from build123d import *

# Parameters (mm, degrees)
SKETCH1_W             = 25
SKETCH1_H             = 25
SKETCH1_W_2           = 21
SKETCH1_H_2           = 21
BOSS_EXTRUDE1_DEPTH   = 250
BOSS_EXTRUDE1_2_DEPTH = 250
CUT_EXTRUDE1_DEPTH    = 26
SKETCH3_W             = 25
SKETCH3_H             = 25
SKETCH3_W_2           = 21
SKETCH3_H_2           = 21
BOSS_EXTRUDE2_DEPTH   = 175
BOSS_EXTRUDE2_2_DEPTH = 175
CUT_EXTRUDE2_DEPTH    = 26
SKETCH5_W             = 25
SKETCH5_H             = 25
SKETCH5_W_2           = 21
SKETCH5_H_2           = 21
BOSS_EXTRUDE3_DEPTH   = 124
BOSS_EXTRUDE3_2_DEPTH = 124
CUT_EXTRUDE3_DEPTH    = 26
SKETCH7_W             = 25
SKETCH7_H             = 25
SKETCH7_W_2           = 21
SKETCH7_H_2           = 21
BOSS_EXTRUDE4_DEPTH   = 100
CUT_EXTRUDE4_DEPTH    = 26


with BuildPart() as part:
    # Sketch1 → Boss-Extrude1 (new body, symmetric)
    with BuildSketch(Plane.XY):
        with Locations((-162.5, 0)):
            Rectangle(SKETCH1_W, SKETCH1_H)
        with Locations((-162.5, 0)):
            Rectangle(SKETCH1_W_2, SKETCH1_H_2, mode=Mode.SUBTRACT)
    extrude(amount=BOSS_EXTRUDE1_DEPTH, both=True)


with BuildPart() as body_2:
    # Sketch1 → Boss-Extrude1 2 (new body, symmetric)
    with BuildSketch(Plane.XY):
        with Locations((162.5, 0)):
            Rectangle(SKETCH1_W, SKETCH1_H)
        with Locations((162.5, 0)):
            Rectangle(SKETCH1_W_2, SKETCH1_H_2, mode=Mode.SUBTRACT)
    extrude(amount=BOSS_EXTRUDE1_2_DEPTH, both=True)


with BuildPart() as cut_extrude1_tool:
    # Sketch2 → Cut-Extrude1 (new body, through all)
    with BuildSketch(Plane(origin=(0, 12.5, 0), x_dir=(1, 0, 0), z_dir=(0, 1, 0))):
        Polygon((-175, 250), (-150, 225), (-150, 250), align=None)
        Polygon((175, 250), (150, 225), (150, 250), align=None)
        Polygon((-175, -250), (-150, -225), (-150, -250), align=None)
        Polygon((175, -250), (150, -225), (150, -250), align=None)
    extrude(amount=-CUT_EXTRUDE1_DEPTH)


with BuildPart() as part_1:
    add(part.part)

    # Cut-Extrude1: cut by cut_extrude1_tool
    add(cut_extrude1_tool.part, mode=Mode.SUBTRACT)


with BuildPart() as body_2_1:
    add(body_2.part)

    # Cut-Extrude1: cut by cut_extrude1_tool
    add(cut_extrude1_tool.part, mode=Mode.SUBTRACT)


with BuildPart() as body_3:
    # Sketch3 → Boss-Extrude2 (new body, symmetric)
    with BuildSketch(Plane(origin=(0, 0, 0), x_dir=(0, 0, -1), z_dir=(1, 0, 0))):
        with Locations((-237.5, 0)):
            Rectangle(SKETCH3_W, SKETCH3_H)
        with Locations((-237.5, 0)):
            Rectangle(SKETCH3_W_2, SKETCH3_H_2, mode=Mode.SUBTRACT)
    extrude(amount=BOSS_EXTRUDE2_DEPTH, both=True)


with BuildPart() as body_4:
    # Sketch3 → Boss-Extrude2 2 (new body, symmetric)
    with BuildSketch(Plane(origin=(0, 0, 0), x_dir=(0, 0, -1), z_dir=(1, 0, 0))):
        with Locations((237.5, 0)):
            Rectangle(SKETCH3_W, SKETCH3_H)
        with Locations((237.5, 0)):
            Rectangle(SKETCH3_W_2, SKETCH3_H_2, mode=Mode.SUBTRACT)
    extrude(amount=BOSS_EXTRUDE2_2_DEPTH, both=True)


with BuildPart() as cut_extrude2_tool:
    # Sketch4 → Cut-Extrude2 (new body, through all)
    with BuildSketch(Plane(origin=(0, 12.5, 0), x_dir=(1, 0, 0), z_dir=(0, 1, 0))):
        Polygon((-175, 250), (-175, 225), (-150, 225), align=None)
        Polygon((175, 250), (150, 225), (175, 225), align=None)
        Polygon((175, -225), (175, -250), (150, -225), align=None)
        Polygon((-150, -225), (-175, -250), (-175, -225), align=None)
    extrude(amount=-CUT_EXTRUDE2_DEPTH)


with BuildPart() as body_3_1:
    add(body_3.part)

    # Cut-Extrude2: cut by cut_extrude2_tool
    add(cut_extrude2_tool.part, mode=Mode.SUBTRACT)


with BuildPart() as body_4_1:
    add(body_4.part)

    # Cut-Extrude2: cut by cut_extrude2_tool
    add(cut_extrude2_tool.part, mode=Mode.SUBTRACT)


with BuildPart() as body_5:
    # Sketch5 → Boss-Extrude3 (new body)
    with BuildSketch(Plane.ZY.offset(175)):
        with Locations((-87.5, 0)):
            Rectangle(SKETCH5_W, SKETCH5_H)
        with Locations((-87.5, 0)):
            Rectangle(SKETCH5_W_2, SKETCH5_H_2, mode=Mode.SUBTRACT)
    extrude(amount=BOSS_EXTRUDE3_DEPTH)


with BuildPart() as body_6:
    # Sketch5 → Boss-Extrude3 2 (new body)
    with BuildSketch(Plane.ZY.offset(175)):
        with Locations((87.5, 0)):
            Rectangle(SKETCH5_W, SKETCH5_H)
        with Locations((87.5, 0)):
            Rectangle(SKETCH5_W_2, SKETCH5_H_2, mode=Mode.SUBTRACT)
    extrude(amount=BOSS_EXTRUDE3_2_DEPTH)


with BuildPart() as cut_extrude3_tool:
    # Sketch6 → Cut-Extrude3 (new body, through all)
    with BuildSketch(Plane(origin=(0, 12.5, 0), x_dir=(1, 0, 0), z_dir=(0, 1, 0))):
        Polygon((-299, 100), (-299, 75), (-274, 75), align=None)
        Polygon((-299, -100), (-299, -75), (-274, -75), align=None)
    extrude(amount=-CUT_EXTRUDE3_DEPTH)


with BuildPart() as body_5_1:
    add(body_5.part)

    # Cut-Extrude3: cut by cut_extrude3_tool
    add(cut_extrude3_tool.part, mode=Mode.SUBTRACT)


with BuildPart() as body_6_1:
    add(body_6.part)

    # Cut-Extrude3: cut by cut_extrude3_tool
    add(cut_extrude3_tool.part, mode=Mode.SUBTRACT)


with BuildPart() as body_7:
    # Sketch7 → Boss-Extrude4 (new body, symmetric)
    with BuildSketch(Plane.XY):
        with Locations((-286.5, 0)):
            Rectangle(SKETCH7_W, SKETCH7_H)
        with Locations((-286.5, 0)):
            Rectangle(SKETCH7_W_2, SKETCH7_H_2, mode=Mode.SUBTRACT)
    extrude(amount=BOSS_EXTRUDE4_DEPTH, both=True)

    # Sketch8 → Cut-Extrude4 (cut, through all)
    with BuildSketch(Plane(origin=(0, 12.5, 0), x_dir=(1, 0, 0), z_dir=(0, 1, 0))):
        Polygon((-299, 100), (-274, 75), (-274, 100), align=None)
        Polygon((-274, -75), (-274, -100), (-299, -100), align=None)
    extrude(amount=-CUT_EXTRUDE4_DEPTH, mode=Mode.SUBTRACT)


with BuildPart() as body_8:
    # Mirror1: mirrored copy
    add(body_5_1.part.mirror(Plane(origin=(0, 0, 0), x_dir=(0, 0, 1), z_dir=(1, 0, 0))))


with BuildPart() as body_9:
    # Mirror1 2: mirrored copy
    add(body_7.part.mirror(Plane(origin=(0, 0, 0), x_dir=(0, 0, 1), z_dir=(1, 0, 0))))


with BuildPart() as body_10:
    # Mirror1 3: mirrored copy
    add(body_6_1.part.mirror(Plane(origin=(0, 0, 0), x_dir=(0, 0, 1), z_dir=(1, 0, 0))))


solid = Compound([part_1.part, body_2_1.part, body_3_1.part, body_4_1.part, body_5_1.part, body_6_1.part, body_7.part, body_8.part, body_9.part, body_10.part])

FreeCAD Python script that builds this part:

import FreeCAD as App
import Part
import Sketcher
from FreeCAD import Vector
Q = App.Units.Quantity


def add_polygon(sketch, points):
    """Adds a closed chain of lines whose ends are joined by coincident constraints."""
    first, n = sketch.GeometryCount, len(points)
    for a, b in zip(points, points[1:] + points[:1]):
        sketch.addGeometry(Part.LineSegment(App.Vector(*a, 0), App.Vector(*b, 0)), False)
    for i in range(n):
        sketch.addConstraint(Sketcher.Constraint("Coincident", first + i, 2, first + (i + 1) % n, 1))

doc = App.newDocument("Part")
body = doc.addObject("PartDesign::Body", "Body")

sketch1 = body.newObject("Sketcher::SketchObject", "Sketch")
sketch1.AttachmentSupport = (doc.getObject("XY_Plane"), [""])
sketch1.MapMode = "FlatFace"
add_polygon(sketch1, [(-175, 12), (-175, -12), (-150, -12), (-150, 12)])
add_polygon(sketch1, [(-152, -10), (-173, -10), (-173, 10), (-152, 10)])
sketch1.addConstraint([
    Sketcher.Constraint("Vertical", 0),
    Sketcher.Constraint("Horizontal", 1),
    Sketcher.Constraint("Vertical", 2),
    Sketcher.Constraint("Horizontal", 3),
    Sketcher.Constraint("Horizontal", 4),
    Sketcher.Constraint("Vertical", 5),
    Sketcher.Constraint("Horizontal", 6),
    Sketcher.Constraint("Vertical", 7),
    Sketcher.Constraint("Equal", 3, 0),
    Sketcher.Constraint("Equal", 6, 5),
    Sketcher.Constraint("DistanceX", 1, 1, 1, 2, Q("25 mm")),
    Sketcher.Constraint("DistanceX", 4, 2, 4, 1, Q("21 mm")),
    Sketcher.Constraint("DistanceX", 0, 2, -1, 1, Q("175 mm")),
    Sketcher.Constraint("DistanceX", 4, 2, -1, 1, Q("173 mm")),
    Sketcher.Constraint("DistanceY", 0, 2, 4, 2, Q("2 mm")),
    Sketcher.Constraint("DistanceY", 0, 2, -1, 1, Q("12.5 mm")),
])
pad1 = body.newObject("PartDesign::Pad", "Pad")
pad1.Profile = sketch1
pad1.Length = 500
pad1.Midplane = True
body2 = doc.addObject("PartDesign::Body", "Body001")

sketch2 = body2.newObject("Sketcher::SketchObject", "Sketch001")
sketch2.AttachmentSupport = (doc.getObject("XY_Plane001"), [""])
sketch2.MapMode = "FlatFace"
add_polygon(sketch2, [(150, 12), (150, -12), (175, -12), (175, 12)])
add_polygon(sketch2, [(173, -10), (152, -10), (152, 10), (173, 10)])
sketch2.addConstraint([
    Sketcher.Constraint("Vertical", 0),
    Sketcher.Constraint("Horizontal", 1),
    Sketcher.Constraint("Vertical", 2),
    Sketcher.Constraint("Horizontal", 3),
    Sketcher.Constraint("Horizontal", 4),
    Sketcher.Constraint("Vertical", 5),
    Sketcher.Constraint("Horizontal", 6),
    Sketcher.Constraint("Vertical", 7),
    Sketcher.Constraint("Equal", 3, 0),
    Sketcher.Constraint("Equal", 6, 5),
    Sketcher.Constraint("DistanceX", 1, 1, 1, 2, Q("25 mm")),
    Sketcher.Constraint("DistanceX", 4, 2, 4, 1, Q("21 mm")),
    Sketcher.Constraint("DistanceX", -1, 1, 0, 2, Q("150 mm")),
    Sketcher.Constraint("DistanceX", -1, 1, 4, 2, Q("152 mm")),
    Sketcher.Constraint("DistanceY", 0, 2, 4, 2, Q("2 mm")),
    Sketcher.Constraint("DistanceY", 0, 2, -1, 1, Q("12.5 mm")),
])
pad2 = body2.newObject("PartDesign::Pad", "Pad001")
pad2.Profile = sketch2
pad2.Length = 500
pad2.Midplane = True
body3 = doc.addObject("PartDesign::Body", "Body002")
body3.AllowCompound = True

sketch3 = body3.newObject("Sketcher::SketchObject", "Sketch002")
sketch3.AttachmentSupport = (doc.getObject("XZ_Plane002"), [""])
sketch3.MapMode = "FlatFace"
sketch3.AttachmentOffset = App.Placement(Vector(0, 0, -12.5), App.Rotation())
add_polygon(sketch3, [(-175, -250), (-150, -225), (-150, -250)])
add_polygon(sketch3, [(150, -225), (175, -250), (150, -250)])
add_polygon(sketch3, [(-150, 225), (-175, 250), (-150, 250)])
add_polygon(sketch3, [(175, 250), (150, 225), (150, 250)])
sketch3.addConstraint([
    Sketcher.Constraint("Vertical", 1),
    Sketcher.Constraint("Horizontal", 2),
    Sketcher.Constraint("Horizontal", 4),
    Sketcher.Constraint("Vertical", 5),
    Sketcher.Constraint("Horizontal", 7),
    Sketcher.Constraint("Vertical", 8),
    Sketcher.Constraint("Vertical", 10),
    Sketcher.Constraint("Horizontal", 11),
    Sketcher.Constraint("Symmetric", 3, 2, 6, 2, -1, 1),
    Sketcher.Constraint("Symmetric", 5, 2, 8, 2, -1, 1),
    Sketcher.Constraint("Symmetric", 0, 2, 9, 2, -1, 1),
    Sketcher.Constraint("Symmetric", 2, 2, 11, 2, -1, 1),
    Sketcher.Constraint("Symmetric", 2, 2, 3, 2, -2),
    Sketcher.Constraint("Symmetric", 0, 2, 5, 2, -2),
    Sketcher.Constraint("Perpendicular", 0, 3),
    Sketcher.Constraint("DistanceX", 2, 2, 2, 1, Q("25 mm")),
    Sketcher.Constraint("DistanceX", 0, 2, -1, 1, Q("150 mm")),
    Sketcher.Constraint("DistanceY", 0, 2, -1, 1, Q("225 mm")),
])
pad3 = body3.newObject("PartDesign::Pad", "Pad002")
pad3.Profile = sketch3
pad3.Length = 26
doc.recompute()

body4 = doc.addObject("PartDesign::Body", "Body003")
body4.BaseFeature = body3
boolean = body.newObject("PartDesign::Boolean", "Boolean")
boolean.Type = "Cut"
boolean.addObjects([body4])
doc.recompute()

boolean2 = body2.newObject("PartDesign::Boolean", "Boolean001")
boolean2.Type = "Cut"
boolean2.addObjects([body3])
body5 = doc.addObject("PartDesign::Body", "Body004")

sketch4 = body5.newObject("Sketcher::SketchObject", "Sketch003")
sketch4.AttachmentSupport = (doc.getObject("YZ_Plane004"), [""])
sketch4.MapMode = "FlatFace"
add_polygon(sketch4, [(12, 250), (-12, 250), (-12, 225), (12, 225)])
add_polygon(sketch4, [(-10, 227), (-10, 248), (10, 248), (10, 227)])
sketch4.addConstraint([
    Sketcher.Constraint("Horizontal", 0),
    Sketcher.Constraint("Vertical", 1),
    Sketcher.Constraint("Horizontal", 2),
    Sketcher.Constraint("Vertical", 3),
    Sketcher.Constraint("Vertical", 4),
    Sketcher.Constraint("Horizontal", 5),
    Sketcher.Constraint("Vertical", 6),
    Sketcher.Constraint("Horizontal", 7),
    Sketcher.Constraint("Equal", 2, 1),
    Sketcher.Constraint("Equal", 7, 4),
    Sketcher.Constraint("DistanceX", 0, 2, 0, 1, Q("25 mm")),
    Sketcher.Constraint("DistanceX", 5, 1, 5, 2, Q("21 mm")),
    Sketcher.Constraint("DistanceY", -1, 1, 0, 2, Q("250 mm")),
    Sketcher.Constraint("DistanceY", -1, 1, 4, 2, Q("248 mm")),
    Sketcher.Constraint("DistanceX", 0, 2, 4, 2, Q("2 mm")),
    Sketcher.Constraint("DistanceX", 0, 2, -1, 1, Q("12.5 mm")),
])
pad4 = body5.newObject("PartDesign::Pad", "Pad003")
pad4.Profile = sketch4
pad4.Length = 350
pad4.Midplane = True
body6 = doc.addObject("PartDesign::Body", "Body005")

sketch5 = body6.newObject("Sketcher::SketchObject", "Sketch004")
sketch5.AttachmentSupport = (doc.getObject("YZ_Plane005"), [""])
sketch5.MapMode = "FlatFace"
add_polygon(sketch5, [(12, -225), (-12, -225), (-12, -250), (12, -250)])
add_polygon(sketch5, [(-10, -248), (-10, -227), (10, -227), (10, -248)])
sketch5.addConstraint([
    Sketcher.Constraint("Horizontal", 0),
    Sketcher.Constraint("Vertical", 1),
    Sketcher.Constraint("Horizontal", 2),
    Sketcher.Constraint("Vertical", 3),
    Sketcher.Constraint("Vertical", 4),
    Sketcher.Constraint("Horizontal", 5),
    Sketcher.Constraint("Vertical", 6),
    Sketcher.Constraint("Horizontal", 7),
    Sketcher.Constraint("Equal", 2, 1),
    Sketcher.Constraint("Equal", 7, 4),
    Sketcher.Constraint("DistanceX", 0, 2, 0, 1, Q("25 mm")),
    Sketcher.Constraint("DistanceX", 5, 1, 5, 2, Q("21 mm")),
    Sketcher.Constraint("DistanceY", 0, 2, -1, 1, Q("225 mm")),
    Sketcher.Constraint("DistanceY", 4, 2, -1, 1, Q("227 mm")),
    Sketcher.Constraint("DistanceX", 0, 2, 4, 2, Q("2 mm")),
    Sketcher.Constraint("DistanceX", 0, 2, -1, 1, Q("12.5 mm")),
])
pad5 = body6.newObject("PartDesign::Pad", "Pad004")
pad5.Profile = sketch5
pad5.Length = 350
pad5.Midplane = True
body7 = doc.addObject("PartDesign::Body", "Body006")
body7.AllowCompound = True

sketch6 = body7.newObject("Sketcher::SketchObject", "Sketch005")
sketch6.AttachmentSupport = (doc.getObject("XZ_Plane006"), [""])
sketch6.MapMode = "FlatFace"
sketch6.AttachmentOffset = App.Placement(Vector(0, 0, -12.5), App.Rotation())
add_polygon(sketch6, [(-175, -250), (-175, -225), (-150, -225)])
add_polygon(sketch6, [(175, -250), (150, -225), (175, -225)])
add_polygon(sketch6, [(175, 250), (175, 225), (150, 225)])
add_polygon(sketch6, [(-175, 250), (-150, 225), (-175, 225)])
sketch6.addConstraint([
    Sketcher.Constraint("Vertical", 0),
    Sketcher.Constraint("Horizontal", 1),
    Sketcher.Constraint("Horizontal", 4),
    Sketcher.Constraint("Vertical", 5),
    Sketcher.Constraint("Vertical", 6),
    Sketcher.Constraint("Horizontal", 7),
    Sketcher.Constraint("Horizontal", 10),
    Sketcher.Constraint("Vertical", 11),
    Sketcher.Constraint("Symmetric", 0, 2, 6, 2, -1, 1),
    Sketcher.Constraint("Symmetric", 3, 2, 9, 2, -1, 1),
    Sketcher.Constraint("Symmetric", 5, 2, 11, 2, -1, 1),
    Sketcher.Constraint("Symmetric", 1, 2, 3, 2, -2),
    Sketcher.Constraint("Symmetric", 2, 2, 5, 2, -2),
    Sketcher.Constraint("Perpendicular", 2, 3),
    Sketcher.Constraint("Perpendicular", 3, 8),
    Sketcher.Constraint("Horizontal", 8, 2, 11, 2),
    Sketcher.Constraint("DistanceX", 1, 1, 1, 2, Q("25 mm")),
    Sketcher.Constraint("DistanceX", 0, 2, -1, 1, Q("175 mm")),
    Sketcher.Constraint("DistanceY", 0, 2, -1, 1, Q("225 mm")),
])
pad6 = body7.newObject("PartDesign::Pad", "Pad005")
pad6.Profile = sketch6
pad6.Length = 26
doc.recompute()

body8 = doc.addObject("PartDesign::Body", "Body007")
body8.BaseFeature = body7
boolean3 = body5.newObject("PartDesign::Boolean", "Boolean002")
boolean3.Type = "Cut"
boolean3.addObjects([body8])
doc.recompute()

boolean4 = body6.newObject("PartDesign::Boolean", "Boolean003")
boolean4.Type = "Cut"
boolean4.addObjects([body7])
body9 = doc.addObject("PartDesign::Body", "Body008")

sketch7 = body9.newObject("Sketcher::SketchObject", "Sketch006")
sketch7.AttachmentSupport = (doc.getObject("YZ_Plane008"), [""])
sketch7.MapMode = "FlatFace"
sketch7.AttachmentOffset = App.Placement(Vector(0, 0, -175), App.Rotation())
add_polygon(sketch7, [(12, -100), (-12, -100), (-12, -75), (12, -75)])
add_polygon(sketch7, [(-10, -77), (-10, -98), (10, -98), (10, -77)])
sketch7.addConstraint([
    Sketcher.Constraint("Horizontal", 0),
    Sketcher.Constraint("Vertical", 1),
    Sketcher.Constraint("Horizontal", 2),
    Sketcher.Constraint("Vertical", 3),
    Sketcher.Constraint("Vertical", 4),
    Sketcher.Constraint("Horizontal", 5),
    Sketcher.Constraint("Vertical", 6),
    Sketcher.Constraint("Horizontal", 7),
    Sketcher.Constraint("Equal", 2, 1),
    Sketcher.Constraint("Equal", 7, 4),
    Sketcher.Constraint("DistanceX", 0, 2, 0, 1, Q("25 mm")),
    Sketcher.Constraint("DistanceX", 5, 1, 5, 2, Q("21 mm")),
    Sketcher.Constraint("DistanceY", 0, 2, -1, 1, Q("100 mm")),
    Sketcher.Constraint("DistanceY", 4, 2, -1, 1, Q("98 mm")),
    Sketcher.Constraint("DistanceX", 0, 2, 4, 2, Q("2 mm")),
    Sketcher.Constraint("DistanceX", 0, 2, -1, 1, Q("12.5 mm")),
])
pad7 = body9.newObject("PartDesign::Pad", "Pad006")
pad7.Profile = sketch7
pad7.Length = 124
pad7.Reversed = True
body10 = doc.addObject("PartDesign::Body", "Body009")

sketch8 = body10.newObject("Sketcher::SketchObject", "Sketch007")
sketch8.AttachmentSupport = (doc.getObject("YZ_Plane009"), [""])
sketch8.MapMode = "FlatFace"
sketch8.AttachmentOffset = App.Placement(Vector(0, 0, -175), App.Rotation())
add_polygon(sketch8, [(12, 75), (-12, 75), (-12, 100), (12, 100)])
add_polygon(sketch8, [(-10, 98), (-10, 77), (10, 77), (10, 98)])
sketch8.addConstraint([
    Sketcher.Constraint("Horizontal", 0),
    Sketcher.Constraint("Vertical", 1),
    Sketcher.Constraint("Horizontal", 2),
    Sketcher.Constraint("Vertical", 3),
    Sketcher.Constraint("Vertical", 4),
    Sketcher.Constraint("Horizontal", 5),
    Sketcher.Constraint("Vertical", 6),
    Sketcher.Constraint("Horizontal", 7),
    Sketcher.Constraint("Equal", 2, 1),
    Sketcher.Constraint("Equal", 7, 4),
    Sketcher.Constraint("DistanceX", 0, 2, 0, 1, Q("25 mm")),
    Sketcher.Constraint("DistanceX", 5, 1, 5, 2, Q("21 mm")),
    Sketcher.Constraint("DistanceY", -1, 1, 0, 2, Q("75 mm")),
    Sketcher.Constraint("DistanceY", -1, 1, 4, 2, Q("77 mm")),
    Sketcher.Constraint("DistanceX", 0, 2, 4, 2, Q("2 mm")),
    Sketcher.Constraint("DistanceX", 0, 2, -1, 1, Q("12.5 mm")),
])
pad8 = body10.newObject("PartDesign::Pad", "Pad007")
pad8.Profile = sketch8
pad8.Length = 124
pad8.Reversed = True
body11 = doc.addObject("PartDesign::Body", "Body010")
body11.AllowCompound = True

sketch9 = body11.newObject("Sketcher::SketchObject", "Sketch008")
sketch9.AttachmentSupport = (doc.getObject("XZ_Plane010"), [""])
sketch9.MapMode = "FlatFace"
sketch9.AttachmentOffset = App.Placement(Vector(0, 0, -12.5), App.Rotation())
add_polygon(sketch9, [(-299, -100), (-299, -75), (-274, -75)])
add_polygon(sketch9, [(-299, 75), (-299, 100), (-274, 75)])
sketch9.addConstraint([
    Sketcher.Constraint("Vertical", 0),
    Sketcher.Constraint("Horizontal", 1),
    Sketcher.Constraint("Vertical", 3),
    Sketcher.Constraint("Horizontal", 5),
    Sketcher.Constraint("Symmetric", 2, 2, 3, 2, -1),
    Sketcher.Constraint("Symmetric", 1, 2, 4, 2, -1),
    Sketcher.Constraint("Perpendicular", 2, 4),
    Sketcher.Constraint("DistanceX", 1, 1, 1, 2, Q("25 mm")),
    Sketcher.Constraint("DistanceX", 0, 2, -1, 1, Q("299 mm")),
    Sketcher.Constraint("DistanceY", 0, 2, -1, 1, Q("75 mm")),
])
pad9 = body11.newObject("PartDesign::Pad", "Pad008")
pad9.Profile = sketch9
pad9.Length = 26
doc.recompute()

body12 = doc.addObject("PartDesign::Body", "Body011")
body12.BaseFeature = body11
boolean5 = body9.newObject("PartDesign::Boolean", "Boolean004")
boolean5.Type = "Cut"
boolean5.addObjects([body12])
doc.recompute()

boolean6 = body10.newObject("PartDesign::Boolean", "Boolean005")
boolean6.Type = "Cut"
boolean6.addObjects([body11])
body13 = doc.addObject("PartDesign::Body", "Body012")

sketch10 = body13.newObject("Sketcher::SketchObject", "Sketch009")
sketch10.AttachmentSupport = (doc.getObject("XY_Plane012"), [""])
sketch10.MapMode = "FlatFace"
add_polygon(sketch10, [(-299, 12), (-299, -12), (-274, -12), (-274, 12)])
add_polygon(sketch10, [(-276, -10), (-297, -10), (-297, 10), (-276, 10)])
sketch10.addConstraint([
    Sketcher.Constraint("Vertical", 0),
    Sketcher.Constraint("Horizontal", 1),
    Sketcher.Constraint("Vertical", 2),
    Sketcher.Constraint("Horizontal", 3),
    Sketcher.Constraint("Horizontal", 4),
    Sketcher.Constraint("Vertical", 5),
    Sketcher.Constraint("Horizontal", 6),
    Sketcher.Constraint("Vertical", 7),
    Sketcher.Constraint("Equal", 3, 0),
    Sketcher.Constraint("Equal", 6, 5),
    Sketcher.Constraint("DistanceX", 1, 1, 1, 2, Q("25 mm")),
    Sketcher.Constraint("DistanceX", 4, 2, 4, 1, Q("21 mm")),
    Sketcher.Constraint("DistanceX", 0, 2, -1, 1, Q("299 mm")),
    Sketcher.Constraint("DistanceX", 4, 2, -1, 1, Q("297 mm")),
    Sketcher.Constraint("DistanceY", 0, 2, 4, 2, Q("2 mm")),
    Sketcher.Constraint("DistanceY", 0, 2, -1, 1, Q("12.5 mm")),
])
pad10 = body13.newObject("PartDesign::Pad", "Pad009")
pad10.Profile = sketch10
pad10.Length = 200
pad10.Midplane = True

sketch11 = body13.newObject("Sketcher::SketchObject", "Sketch010")
sketch11.AttachmentSupport = (doc.getObject("XZ_Plane012"), [""])
sketch11.MapMode = "FlatFace"
sketch11.AttachmentOffset = App.Placement(Vector(0, 0, -12.5), App.Rotation())
add_polygon(sketch11, [(-299, -100), (-274, -75), (-274, -100)])
add_polygon(sketch11, [(-274, 100), (-274, 75), (-299, 100)])
sketch11.addConstraint([
    Sketcher.Constraint("Vertical", 1),
    Sketcher.Constraint("Horizontal", 2),
    Sketcher.Constraint("Vertical", 3),
    Sketcher.Constraint("Horizontal", 5),
    Sketcher.Constraint("Symmetric", 0, 2, 3, 2, -1),
    Sketcher.Constraint("Symmetric", 2, 2, 4, 2, -1),
    Sketcher.Constraint("Perpendicular", 0, 4),
    Sketcher.Constraint("DistanceX", 2, 2, 2, 1, Q("25 mm")),
    Sketcher.Constraint("DistanceX", 0, 2, -1, 1, Q("274 mm")),
    Sketcher.Constraint("DistanceY", 0, 2, -1, 1, Q("75 mm")),
])
pocket1 = body13.newObject("PartDesign::Pocket", "Pocket")
pocket1.Profile = sketch11
pocket1.Type = "ThroughAll"
pocket1.Reversed = True
body14 = doc.addObject("PartDesign::Body", "Body013")
doc.recompute()

mirroring = doc.addObject("Part::Mirroring", "Mirroring")
mirroring.Source = body9
mirroring.Base = Vector(0, 0, 0)
mirroring.Normal = Vector(1, 0, 0)
body14.BaseFeature = mirroring
doc.recompute()
body15 = doc.addObject("PartDesign::Body", "Body014")
doc.recompute()

mirroring2 = doc.addObject("Part::Mirroring", "Mirroring001")
mirroring2.Source = body13
mirroring2.Base = Vector(0, 0, 0)
mirroring2.Normal = Vector(1, 0, 0)
body15.BaseFeature = mirroring2
doc.recompute()
body16 = doc.addObject("PartDesign::Body", "Body015")
doc.recompute()

mirroring3 = doc.addObject("Part::Mirroring", "Mirroring002")
mirroring3.Source = body10
mirroring3.Base = Vector(0, 0, 0)
mirroring3.Normal = Vector(1, 0, 0)
body16.BaseFeature = mirroring3
doc.recompute()
mirroring.Visibility = False
mirroring2.Visibility = False
mirroring3.Visibility = False

doc.recompute()
